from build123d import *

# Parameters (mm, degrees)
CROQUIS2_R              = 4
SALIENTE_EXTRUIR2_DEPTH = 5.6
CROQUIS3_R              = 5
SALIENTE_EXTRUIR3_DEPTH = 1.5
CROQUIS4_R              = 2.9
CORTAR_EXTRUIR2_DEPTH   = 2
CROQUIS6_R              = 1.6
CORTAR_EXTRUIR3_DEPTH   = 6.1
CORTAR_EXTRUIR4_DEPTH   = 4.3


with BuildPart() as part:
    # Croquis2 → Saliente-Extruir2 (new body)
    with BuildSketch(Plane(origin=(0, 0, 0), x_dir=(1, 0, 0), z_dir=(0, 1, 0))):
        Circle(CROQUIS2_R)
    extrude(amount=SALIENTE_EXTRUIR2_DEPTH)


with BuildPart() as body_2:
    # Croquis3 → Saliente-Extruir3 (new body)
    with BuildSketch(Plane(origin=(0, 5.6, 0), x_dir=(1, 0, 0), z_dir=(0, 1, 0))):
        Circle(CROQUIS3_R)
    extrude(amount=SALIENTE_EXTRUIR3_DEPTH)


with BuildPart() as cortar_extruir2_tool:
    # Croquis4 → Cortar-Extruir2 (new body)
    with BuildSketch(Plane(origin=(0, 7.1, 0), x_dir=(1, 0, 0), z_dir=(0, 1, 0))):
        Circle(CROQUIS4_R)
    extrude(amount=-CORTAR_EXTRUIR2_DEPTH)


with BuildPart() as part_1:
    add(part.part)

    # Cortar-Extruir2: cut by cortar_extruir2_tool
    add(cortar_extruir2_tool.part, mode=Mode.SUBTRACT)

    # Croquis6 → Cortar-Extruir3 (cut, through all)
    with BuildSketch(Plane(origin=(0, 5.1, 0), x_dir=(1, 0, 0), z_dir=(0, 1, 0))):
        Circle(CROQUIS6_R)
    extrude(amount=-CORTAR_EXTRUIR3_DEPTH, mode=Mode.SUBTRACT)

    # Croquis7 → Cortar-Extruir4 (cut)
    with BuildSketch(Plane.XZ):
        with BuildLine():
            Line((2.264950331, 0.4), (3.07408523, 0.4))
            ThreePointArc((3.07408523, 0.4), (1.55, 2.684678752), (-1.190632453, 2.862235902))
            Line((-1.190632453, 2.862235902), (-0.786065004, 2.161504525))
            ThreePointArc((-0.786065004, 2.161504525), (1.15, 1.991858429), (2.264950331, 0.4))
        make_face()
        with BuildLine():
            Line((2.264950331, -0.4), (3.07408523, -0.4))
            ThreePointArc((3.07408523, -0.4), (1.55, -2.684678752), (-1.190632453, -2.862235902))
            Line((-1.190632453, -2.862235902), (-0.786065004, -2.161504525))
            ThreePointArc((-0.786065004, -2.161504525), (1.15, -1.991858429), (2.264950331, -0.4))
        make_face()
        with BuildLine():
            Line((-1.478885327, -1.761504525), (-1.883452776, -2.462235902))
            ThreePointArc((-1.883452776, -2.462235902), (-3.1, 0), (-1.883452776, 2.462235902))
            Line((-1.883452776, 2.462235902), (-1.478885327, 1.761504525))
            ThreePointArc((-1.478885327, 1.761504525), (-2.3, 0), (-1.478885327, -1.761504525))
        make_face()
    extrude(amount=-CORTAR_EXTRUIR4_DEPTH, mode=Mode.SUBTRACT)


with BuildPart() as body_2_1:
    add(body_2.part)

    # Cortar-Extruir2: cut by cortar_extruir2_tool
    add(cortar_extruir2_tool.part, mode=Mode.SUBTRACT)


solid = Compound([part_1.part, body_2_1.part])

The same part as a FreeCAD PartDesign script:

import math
import FreeCAD as App
import Part
import Sketcher

V = App.Vector
Q = App.Units.Quantity

doc = App.newDocument("Part")
body = doc.addObject("PartDesign::Body", "Body")

sketch1 = doc.addObject("Sketcher::SketchObject", "Sketch")
body.addObject(sketch1)
sketch1.AttachmentSupport = (doc.XZ_Plane, [""])
sketch1.MapMode = "FlatFace"
sketch1.addGeometry(Part.Circle(V(0, 0, 0), V(0, 0, 1), 4), False)
sketch1.addConstraint(Sketcher.Constraint("Coincident", 0, 3, -1, 1))
sketch1.addConstraint(Sketcher.Constraint("Diameter", 0, 8.0))
pad1 = doc.addObject("PartDesign::Pad", "Pad")
body.addObject(pad1)
pad1.Profile = sketch1
pad1.Length = 5.6
pad1.Reversed = True
body2 = doc.addObject("PartDesign::Body", "Body001")

sketch2 = doc.addObject("Sketcher::SketchObject", "Sketch001")
body2.addObject(sketch2)
sketch2.AttachmentSupport = (doc.getObject("XZ_Plane001"), [""])
sketch2.MapMode = "FlatFace"
sketch2.AttachmentOffset = App.Placement(V(0, 0, -5.6), App.Rotation())
sketch2.addGeometry(Part.Circle(V(0, 0, 0), V(0, 0, 1), 5), False)
sketch2.addConstraint(Sketcher.Constraint("Coincident", 0, 3, -1, 1))
sketch2.addConstraint(Sketcher.Constraint("Diameter", 0, 10.0))
pad2 = doc.addObject("PartDesign::Pad", "Pad001")
body2.addObject(pad2)
pad2.Profile = sketch2
pad2.Length = 1.5
pad2.Reversed = True
body3 = doc.addObject("PartDesign::Body", "Body002")

sketch3 = doc.addObject("Sketcher::SketchObject", "Sketch002")
body3.addObject(sketch3)
sketch3.AttachmentSupport = (doc.getObject("XZ_Plane002"), [""])
sketch3.MapMode = "FlatFace"
sketch3.AttachmentOffset = App.Placement(V(0, 0, -7.1), App.Rotation())
sketch3.addGeometry(Part.Circle(V(0, 0, 0), V(0, 0, 1), 2.9), False)
sketch3.addConstraint(Sketcher.Constraint("Coincident", 0, 3, -1, 1))
sketch3.addConstraint(Sketcher.Constraint("Diameter", 0, 5.8))
pad3 = doc.addObject("PartDesign::Pad", "Pad002")
body3.addObject(pad3)
pad3.Profile = sketch3
pad3.Length = 2
doc.recompute()

body4 = doc.addObject("PartDesign::Body", "Body003")
body4.BaseFeature = body3
boolean = doc.addObject("PartDesign::Boolean", "Boolean")
body.addObject(boolean)
boolean.Type = "Cut"
boolean.addObjects([body4])
doc.recompute()

sketch4 = doc.addObject("Sketcher::SketchObject", "Sketch003")
body.addObject(sketch4)
sketch4.AttachmentSupport = (doc.XZ_Plane, [""])
sketch4.MapMode = "FlatFace"
sketch4.AttachmentOffset = App.Placement(V(0, 0, -5.1), App.Rotation())
sketch4.addGeometry(Part.Circle(V(0, 0, 0), V(0, 0, 1), 1.6), False)
sketch4.addConstraint(Sketcher.Constraint("Coincident", 0, 3, -1, 1))
sketch4.addConstraint(Sketcher.Constraint("Diameter", 0, 3.2))
pocket1 = doc.addObject("PartDesign::Pocket", "Pocket")
body.addObject(pocket1)
pocket1.Profile = sketch4
pocket1.Type = "ThroughAll"
pocket1.Reversed = True

sketch5 = doc.addObject("Sketcher::SketchObject", "Sketch004")
body.addObject(sketch5)
sketch5.AttachmentSupport = (doc.XZ_Plane, [""])
sketch5.MapMode = "FlatFace"
sketch5.addGeometry(Part.LineSegment(V(2.3, 0.4, 0), V(3.1, 0.4, 0)), False)
sketch5.addGeometry(Part.ArcOfCircle(Part.Circle(V(0, 0, 0), V(0, 0, 1), 3.1), math.radians(7), math.radians(113)), False)
sketch5.addGeometry(Part.LineSegment(V(-1.2, 2.9, 0), V(-0.8, 2.2, 0)), False)
sketch5.addGeometry(Part.ArcOfCircle(Part.Circle(V(0, 0, 0), V(0, 0, 1), 2.3), math.radians(10), math.radians(110)), False)
sketch5.addGeometry(Part.LineSegment(V(3.1, -0.4, 0), V(2.3, -0.4, 0)), False)
sketch5.addGeometry(Part.ArcOfCircle(Part.Circle(V(0, 0, 0), V(0, 0, 1), 2.3), math.radians(-110), math.radians(-10)), False)
sketch5.addGeometry(Part.LineSegment(V(-0.8, -2.2, 0), V(-1.2, -2.9, 0)), False)
sketch5.addGeometry(Part.ArcOfCircle(Part.Circle(V(0, 0, 0), V(0, 0, 1), 3.1), math.radians(-113), math.radians(-7)), False)
sketch5.addGeometry(Part.LineSegment(V(-1.9, -2.5, 0), V(-1.5, -1.8, 0)), False)
sketch5.addGeometry(Part.ArcOfCircle(Part.Circle(V(0, 0, 0), V(0, 0, 1), 2.3), math.radians(130), math.radians(230)), False)
sketch5.addGeometry(Part.LineSegment(V(-1.5, 1.8, 0), V(-1.9, 2.5, 0)), False)
sketch5.addGeometry(Part.ArcOfCircle(Part.Circle(V(0, 0, 0), V(0, 0, 1), 3.1), math.radians(127), math.radians(233)), False)
sketch5.addConstraint(Sketcher.Constraint("Coincident", 0, 2, 1, 1))
sketch5.addConstraint(Sketcher.Constraint("Coincident", 1, 2, 2, 1))
sketch5.addConstraint(Sketcher.Constraint("Coincident", 2, 2, 3, 2))
sketch5.addConstraint(Sketcher.Constraint("Coincident", 3, 1, 0, 1))
sketch5.addConstraint(Sketcher.Constraint("Coincident", 4, 2, 5, 2))
sketch5.addConstraint(Sketcher.Constraint("Coincident", 5, 1, 6, 1))
sketch5.addConstraint(Sketcher.Constraint("Coincident", 6, 2, 7, 1))
sketch5.addConstraint(Sketcher.Constraint("Coincident", 7, 2, 4, 1))
sketch5.addConstraint(Sketcher.Constraint("Coincident", 8, 2, 9, 2))
sketch5.addConstraint(Sketcher.Constraint("Coincident", 9, 1, 10, 1))
sketch5.addConstraint(Sketcher.Constraint("Coincident", 10, 2, 11, 1))
sketch5.addConstraint(Sketcher.Constraint("Coincident", 11, 2, 8, 1))
sketch5.addConstraint(Sketcher.Constraint("Horizontal", 0))
sketch5.addConstraint(Sketcher.Constraint("Horizontal", 4))
sketch5.addConstraint(Sketcher.Constraint("Coincident", 1, 3, -1, 1))
sketch5.addConstraint(Sketcher.Constraint("Coincident", 3, 3, -1, 1))
sketch5.addConstraint(Sketcher.Constraint("Coincident", 5, 3, -1, 1))
sketch5.addConstraint(Sketcher.Constraint("Coincident", 7, 3, -1, 1))
sketch5.addConstraint(Sketcher.Constraint("Coincident", 9, 3, -1, 1))
sketch5.addConstraint(Sketcher.Constraint("Coincident", 11, 3, -1, 1))
sketch5.addConstraint(Sketcher.Constraint("Equal", 3, 5))
sketch5.addConstraint(Sketcher.Constraint("Equal", 1, 7))
sketch5.addConstraint(Sketcher.Constraint("Equal", 5, 9))
sketch5.addConstraint(Sketcher.Constraint("Equal", 7, 11))
sketch5.addConstraint(Sketcher.Constraint("Parallel", 6, 8))
sketch5.addConstraint(Sketcher.Constraint("Parallel", 2, 10))
sketch5.addConstraint(Sketcher.Constraint("Vertical", 3, 1, 4, 2))
sketch5.addConstraint(Sketcher.Constraint("Vertical", 2, 2, 5, 1))
sketch5.addConstraint(Sketcher.Constraint("Vertical", 1, 2, 6, 2))
sketch5.addConstraint(Sketcher.Constraint("Vertical", 8, 2, 9, 1))
sketch5.addConstraint(Sketcher.Constraint("Equal", 6, 8))
sketch5.addConstraint(Sketcher.Constraint("Radius", 1, 3.1))
sketch5.addConstraint(Sketcher.Constraint("Radius", 3, 2.3))
sketch5.addConstraint(Sketcher.Constraint("Angle", 2, Q("-60 deg")))
sketch5.addConstraint(Sketcher.Constraint("DistanceY", -1, 1, 0, 2, 0.4))
sketch5.addConstraint(Sketcher.Constraint("DistanceY", 5, 1, 8, 2, 0.4))
pocket2 = doc.addObject("PartDesign::Pocket", "Pocket001")
body.addObject(pocket2)
pocket2.Profile = sketch5
pocket2.Length = 4.3
doc.recompute()

boolean2 = doc.addObject("PartDesign::Boolean", "Boolean001")
body2.addObject(boolean2)
boolean2.Type = "Cut"
boolean2.addObjects([body3])

doc.recompute()
